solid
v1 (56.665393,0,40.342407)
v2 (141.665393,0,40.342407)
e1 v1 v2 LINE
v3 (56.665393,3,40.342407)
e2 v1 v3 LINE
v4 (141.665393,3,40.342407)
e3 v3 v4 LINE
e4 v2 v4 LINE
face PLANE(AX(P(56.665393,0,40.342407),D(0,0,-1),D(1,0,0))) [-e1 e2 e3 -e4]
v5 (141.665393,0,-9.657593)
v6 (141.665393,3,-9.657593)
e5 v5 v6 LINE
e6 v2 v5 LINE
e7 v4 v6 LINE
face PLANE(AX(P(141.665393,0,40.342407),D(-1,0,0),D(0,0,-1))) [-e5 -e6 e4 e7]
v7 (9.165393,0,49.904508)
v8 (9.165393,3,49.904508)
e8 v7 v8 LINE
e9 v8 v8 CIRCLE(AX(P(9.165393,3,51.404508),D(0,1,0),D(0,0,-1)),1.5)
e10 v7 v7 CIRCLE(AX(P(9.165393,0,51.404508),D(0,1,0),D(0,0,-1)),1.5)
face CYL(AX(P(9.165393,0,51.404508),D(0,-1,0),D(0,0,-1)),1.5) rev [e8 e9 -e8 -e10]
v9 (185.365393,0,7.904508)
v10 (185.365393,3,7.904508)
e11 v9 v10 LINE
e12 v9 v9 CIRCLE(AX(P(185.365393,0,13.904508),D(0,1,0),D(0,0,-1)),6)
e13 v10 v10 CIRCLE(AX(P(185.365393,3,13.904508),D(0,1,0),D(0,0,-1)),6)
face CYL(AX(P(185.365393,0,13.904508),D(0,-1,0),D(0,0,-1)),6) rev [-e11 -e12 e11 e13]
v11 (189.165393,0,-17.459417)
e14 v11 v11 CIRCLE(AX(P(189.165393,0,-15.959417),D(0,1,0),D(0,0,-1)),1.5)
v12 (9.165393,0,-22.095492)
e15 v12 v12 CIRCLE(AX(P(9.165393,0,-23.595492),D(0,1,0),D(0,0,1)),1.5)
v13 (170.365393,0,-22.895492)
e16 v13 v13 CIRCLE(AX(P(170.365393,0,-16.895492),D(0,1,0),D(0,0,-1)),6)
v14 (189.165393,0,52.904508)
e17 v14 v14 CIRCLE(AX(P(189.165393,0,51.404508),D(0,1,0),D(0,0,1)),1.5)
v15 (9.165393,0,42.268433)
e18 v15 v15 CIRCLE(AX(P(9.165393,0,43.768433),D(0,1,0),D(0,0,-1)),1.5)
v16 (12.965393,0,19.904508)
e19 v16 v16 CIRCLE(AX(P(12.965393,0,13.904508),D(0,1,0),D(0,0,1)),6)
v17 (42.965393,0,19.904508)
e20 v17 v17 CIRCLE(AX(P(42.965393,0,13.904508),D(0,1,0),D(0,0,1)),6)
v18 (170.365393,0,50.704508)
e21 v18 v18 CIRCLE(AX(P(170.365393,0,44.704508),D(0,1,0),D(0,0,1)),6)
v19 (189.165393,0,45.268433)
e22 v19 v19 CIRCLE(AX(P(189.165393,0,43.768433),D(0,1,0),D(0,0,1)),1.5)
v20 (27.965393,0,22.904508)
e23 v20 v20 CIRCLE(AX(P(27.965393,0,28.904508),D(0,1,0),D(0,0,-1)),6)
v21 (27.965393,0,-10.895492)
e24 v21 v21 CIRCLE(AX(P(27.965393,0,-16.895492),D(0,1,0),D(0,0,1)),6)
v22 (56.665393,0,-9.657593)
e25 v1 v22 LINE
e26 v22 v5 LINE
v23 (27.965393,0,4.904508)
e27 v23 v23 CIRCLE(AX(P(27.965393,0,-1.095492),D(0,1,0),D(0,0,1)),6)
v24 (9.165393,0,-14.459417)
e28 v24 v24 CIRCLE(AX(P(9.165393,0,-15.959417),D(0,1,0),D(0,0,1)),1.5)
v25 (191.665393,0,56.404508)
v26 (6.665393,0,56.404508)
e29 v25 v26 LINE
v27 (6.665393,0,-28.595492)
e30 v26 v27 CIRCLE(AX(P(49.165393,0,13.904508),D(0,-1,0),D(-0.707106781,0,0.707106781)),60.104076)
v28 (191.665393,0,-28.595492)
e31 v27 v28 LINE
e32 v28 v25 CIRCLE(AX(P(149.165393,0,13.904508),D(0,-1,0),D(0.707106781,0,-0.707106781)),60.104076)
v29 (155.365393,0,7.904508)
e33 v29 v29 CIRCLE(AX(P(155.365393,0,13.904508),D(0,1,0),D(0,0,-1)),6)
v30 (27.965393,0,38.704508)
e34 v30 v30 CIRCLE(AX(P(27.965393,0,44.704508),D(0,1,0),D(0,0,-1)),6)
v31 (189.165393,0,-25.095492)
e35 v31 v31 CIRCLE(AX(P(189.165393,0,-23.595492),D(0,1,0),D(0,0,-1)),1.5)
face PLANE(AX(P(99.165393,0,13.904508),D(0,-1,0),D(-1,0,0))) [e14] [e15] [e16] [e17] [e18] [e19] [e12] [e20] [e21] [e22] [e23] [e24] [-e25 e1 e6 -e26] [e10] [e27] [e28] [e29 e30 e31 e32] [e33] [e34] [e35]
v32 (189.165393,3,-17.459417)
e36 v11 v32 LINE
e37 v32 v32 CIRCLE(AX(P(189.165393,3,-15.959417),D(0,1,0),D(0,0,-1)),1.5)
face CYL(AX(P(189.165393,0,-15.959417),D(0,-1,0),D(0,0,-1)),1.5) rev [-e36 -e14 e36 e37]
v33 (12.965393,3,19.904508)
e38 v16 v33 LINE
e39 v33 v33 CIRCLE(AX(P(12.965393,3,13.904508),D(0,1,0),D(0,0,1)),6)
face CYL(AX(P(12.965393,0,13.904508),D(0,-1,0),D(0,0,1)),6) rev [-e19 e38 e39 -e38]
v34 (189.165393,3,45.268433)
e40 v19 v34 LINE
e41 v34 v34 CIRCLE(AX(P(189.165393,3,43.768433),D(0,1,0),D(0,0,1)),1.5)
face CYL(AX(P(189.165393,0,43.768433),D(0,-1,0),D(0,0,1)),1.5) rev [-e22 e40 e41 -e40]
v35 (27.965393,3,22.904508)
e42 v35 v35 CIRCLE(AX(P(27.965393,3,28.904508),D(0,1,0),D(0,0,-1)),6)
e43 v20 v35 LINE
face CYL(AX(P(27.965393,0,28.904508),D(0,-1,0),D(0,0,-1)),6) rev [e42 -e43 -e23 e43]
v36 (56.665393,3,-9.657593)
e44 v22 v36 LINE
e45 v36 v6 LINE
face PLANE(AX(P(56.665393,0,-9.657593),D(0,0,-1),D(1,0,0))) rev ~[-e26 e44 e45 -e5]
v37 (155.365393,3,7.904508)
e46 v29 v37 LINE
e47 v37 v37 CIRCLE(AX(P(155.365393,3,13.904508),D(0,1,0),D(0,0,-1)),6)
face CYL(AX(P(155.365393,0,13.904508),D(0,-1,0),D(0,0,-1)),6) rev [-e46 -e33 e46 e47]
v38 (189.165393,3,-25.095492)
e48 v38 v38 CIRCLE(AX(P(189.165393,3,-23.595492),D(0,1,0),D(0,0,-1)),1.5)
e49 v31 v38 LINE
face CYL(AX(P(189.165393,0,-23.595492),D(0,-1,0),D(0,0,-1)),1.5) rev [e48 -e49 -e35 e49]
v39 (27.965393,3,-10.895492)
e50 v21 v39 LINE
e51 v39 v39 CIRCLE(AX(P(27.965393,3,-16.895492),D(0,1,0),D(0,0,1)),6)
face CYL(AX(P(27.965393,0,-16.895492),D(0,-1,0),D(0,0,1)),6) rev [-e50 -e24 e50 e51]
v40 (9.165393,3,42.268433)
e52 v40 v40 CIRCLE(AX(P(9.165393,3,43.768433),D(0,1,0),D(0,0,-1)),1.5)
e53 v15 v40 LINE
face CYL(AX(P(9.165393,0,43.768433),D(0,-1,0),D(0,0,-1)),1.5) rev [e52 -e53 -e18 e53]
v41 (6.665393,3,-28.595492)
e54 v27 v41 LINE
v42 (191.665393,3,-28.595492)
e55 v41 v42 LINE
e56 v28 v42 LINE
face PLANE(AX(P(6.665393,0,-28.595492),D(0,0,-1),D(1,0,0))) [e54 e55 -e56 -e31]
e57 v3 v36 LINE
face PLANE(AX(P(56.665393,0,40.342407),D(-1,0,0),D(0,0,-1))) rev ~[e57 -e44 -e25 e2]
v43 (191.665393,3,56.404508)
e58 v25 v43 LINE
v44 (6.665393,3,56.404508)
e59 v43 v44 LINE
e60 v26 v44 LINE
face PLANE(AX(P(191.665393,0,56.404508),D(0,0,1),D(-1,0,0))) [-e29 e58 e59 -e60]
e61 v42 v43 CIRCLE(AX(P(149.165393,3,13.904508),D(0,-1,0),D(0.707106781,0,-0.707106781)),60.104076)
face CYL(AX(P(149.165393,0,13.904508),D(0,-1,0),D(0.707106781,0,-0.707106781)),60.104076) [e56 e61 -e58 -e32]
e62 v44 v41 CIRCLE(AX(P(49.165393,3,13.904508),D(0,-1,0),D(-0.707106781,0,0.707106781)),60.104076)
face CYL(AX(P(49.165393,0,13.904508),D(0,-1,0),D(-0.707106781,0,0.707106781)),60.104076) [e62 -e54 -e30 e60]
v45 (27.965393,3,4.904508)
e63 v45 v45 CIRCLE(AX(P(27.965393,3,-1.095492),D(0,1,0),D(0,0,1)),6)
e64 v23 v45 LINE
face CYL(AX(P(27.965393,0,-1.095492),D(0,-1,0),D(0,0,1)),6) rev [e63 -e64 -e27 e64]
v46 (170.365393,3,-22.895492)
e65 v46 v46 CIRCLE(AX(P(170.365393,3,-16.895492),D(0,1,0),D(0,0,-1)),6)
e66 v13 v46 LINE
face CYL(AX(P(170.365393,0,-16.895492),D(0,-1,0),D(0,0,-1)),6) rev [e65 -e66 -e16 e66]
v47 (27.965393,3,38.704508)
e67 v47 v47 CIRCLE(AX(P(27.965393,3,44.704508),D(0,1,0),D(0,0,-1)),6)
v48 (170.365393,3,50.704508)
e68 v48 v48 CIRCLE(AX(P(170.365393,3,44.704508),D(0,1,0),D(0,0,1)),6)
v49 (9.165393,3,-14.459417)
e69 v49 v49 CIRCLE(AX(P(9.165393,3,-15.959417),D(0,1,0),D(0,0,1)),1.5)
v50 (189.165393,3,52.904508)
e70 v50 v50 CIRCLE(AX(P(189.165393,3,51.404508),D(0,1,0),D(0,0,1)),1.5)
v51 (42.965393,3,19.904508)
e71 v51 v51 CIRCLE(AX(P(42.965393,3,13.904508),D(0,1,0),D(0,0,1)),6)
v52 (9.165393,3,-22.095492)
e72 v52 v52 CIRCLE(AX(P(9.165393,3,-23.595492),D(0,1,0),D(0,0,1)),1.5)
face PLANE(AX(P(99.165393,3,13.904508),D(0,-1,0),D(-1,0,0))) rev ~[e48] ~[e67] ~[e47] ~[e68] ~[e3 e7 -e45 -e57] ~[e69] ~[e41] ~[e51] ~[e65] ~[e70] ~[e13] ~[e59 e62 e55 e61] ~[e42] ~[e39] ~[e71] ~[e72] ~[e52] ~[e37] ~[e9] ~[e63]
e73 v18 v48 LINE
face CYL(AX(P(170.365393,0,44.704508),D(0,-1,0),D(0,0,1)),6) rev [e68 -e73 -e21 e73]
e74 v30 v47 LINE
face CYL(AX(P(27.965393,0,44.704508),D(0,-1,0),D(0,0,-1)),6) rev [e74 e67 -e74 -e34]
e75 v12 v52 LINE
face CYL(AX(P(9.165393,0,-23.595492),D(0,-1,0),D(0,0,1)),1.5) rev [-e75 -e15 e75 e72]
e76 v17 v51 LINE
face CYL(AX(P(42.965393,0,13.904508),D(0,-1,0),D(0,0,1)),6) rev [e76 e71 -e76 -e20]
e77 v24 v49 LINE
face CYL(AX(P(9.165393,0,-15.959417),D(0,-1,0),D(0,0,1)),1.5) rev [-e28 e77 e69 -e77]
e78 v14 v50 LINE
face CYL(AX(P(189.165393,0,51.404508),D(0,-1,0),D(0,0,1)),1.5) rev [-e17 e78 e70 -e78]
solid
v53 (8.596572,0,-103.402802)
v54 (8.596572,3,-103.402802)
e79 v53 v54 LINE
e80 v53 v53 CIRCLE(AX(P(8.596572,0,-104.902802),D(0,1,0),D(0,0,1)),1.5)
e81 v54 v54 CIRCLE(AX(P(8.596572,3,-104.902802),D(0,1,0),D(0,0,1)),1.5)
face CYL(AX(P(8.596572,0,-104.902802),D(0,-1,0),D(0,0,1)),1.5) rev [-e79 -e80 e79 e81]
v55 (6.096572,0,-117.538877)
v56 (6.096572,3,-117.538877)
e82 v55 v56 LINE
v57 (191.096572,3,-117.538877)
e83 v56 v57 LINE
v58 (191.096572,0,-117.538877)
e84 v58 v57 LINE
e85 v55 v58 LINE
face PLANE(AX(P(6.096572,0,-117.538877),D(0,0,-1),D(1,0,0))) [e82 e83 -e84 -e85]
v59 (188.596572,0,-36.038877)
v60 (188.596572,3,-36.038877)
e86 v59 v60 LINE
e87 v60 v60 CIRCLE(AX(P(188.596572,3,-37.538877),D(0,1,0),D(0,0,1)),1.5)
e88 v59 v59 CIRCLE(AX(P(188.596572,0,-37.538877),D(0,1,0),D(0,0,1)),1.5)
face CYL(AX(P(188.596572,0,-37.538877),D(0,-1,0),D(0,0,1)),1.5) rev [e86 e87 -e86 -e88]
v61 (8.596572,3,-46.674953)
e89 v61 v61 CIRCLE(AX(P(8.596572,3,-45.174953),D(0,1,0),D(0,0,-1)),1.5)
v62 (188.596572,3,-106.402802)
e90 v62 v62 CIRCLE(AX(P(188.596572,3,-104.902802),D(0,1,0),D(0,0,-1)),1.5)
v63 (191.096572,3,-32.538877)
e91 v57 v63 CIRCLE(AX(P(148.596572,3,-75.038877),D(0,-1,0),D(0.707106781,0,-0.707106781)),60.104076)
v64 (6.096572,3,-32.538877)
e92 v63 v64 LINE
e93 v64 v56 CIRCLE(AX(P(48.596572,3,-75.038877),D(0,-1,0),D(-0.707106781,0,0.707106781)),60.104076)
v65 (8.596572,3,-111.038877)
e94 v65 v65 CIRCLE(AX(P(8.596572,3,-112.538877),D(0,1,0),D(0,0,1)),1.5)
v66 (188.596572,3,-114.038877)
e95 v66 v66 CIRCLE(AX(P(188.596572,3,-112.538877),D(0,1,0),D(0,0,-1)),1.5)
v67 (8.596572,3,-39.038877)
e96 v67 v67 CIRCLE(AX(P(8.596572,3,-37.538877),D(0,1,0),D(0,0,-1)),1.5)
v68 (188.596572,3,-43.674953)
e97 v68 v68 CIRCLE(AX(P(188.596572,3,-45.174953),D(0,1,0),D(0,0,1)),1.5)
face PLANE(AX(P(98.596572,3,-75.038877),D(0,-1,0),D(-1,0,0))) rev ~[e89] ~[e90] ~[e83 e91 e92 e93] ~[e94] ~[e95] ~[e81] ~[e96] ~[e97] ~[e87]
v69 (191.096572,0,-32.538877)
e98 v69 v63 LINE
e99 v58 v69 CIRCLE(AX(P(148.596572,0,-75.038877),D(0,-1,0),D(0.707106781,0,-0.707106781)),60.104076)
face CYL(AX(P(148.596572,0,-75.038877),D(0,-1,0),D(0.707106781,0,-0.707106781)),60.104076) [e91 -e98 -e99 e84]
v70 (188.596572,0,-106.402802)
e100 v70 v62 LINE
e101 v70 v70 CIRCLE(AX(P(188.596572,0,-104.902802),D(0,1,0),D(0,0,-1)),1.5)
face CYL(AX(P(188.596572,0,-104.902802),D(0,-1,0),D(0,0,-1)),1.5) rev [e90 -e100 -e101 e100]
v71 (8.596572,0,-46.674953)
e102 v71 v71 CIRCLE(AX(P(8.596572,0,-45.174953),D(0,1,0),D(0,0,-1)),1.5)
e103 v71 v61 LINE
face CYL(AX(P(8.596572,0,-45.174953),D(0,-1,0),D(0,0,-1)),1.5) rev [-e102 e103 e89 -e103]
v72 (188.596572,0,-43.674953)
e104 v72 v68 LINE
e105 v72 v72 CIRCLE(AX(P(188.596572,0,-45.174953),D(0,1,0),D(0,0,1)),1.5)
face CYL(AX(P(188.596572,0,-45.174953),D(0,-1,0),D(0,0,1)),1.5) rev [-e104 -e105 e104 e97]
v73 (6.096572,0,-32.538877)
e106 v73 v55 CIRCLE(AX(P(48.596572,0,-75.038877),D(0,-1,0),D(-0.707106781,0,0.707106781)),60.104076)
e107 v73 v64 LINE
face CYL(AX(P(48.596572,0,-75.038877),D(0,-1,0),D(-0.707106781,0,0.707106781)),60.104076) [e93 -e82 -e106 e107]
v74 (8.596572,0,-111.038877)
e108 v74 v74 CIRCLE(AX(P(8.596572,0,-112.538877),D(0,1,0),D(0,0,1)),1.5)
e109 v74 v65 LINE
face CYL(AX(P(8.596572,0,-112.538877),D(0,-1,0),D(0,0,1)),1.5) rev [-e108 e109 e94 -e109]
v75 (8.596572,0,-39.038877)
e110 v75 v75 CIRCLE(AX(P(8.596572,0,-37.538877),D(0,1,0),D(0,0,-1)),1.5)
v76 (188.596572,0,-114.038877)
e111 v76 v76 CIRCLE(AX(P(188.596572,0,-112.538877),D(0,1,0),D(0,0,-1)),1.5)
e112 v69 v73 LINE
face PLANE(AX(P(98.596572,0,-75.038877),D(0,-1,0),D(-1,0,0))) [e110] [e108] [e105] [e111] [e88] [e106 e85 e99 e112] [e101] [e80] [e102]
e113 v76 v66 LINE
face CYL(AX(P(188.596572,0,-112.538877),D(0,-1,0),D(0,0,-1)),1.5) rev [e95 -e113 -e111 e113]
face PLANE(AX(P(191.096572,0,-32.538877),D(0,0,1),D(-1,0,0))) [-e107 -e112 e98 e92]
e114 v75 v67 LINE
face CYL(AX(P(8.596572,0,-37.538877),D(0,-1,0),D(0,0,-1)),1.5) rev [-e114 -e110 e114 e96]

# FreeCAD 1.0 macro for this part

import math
import FreeCAD as App
import Part
import Sketcher

V = App.Vector
Q = App.Units.Quantity

doc = App.newDocument("Part")
body = doc.addObject("PartDesign::Body", "Body")

# Sketch on XZ plane
sketch1 = body.newObject("Sketcher::SketchObject", "Sketch")
sketch1.AttachmentSupport = (doc.getObject("XZ_Plane"), [""])
sketch1.MapMode = "FlatFace"
sketch1.addGeometry([
    Part.LineSegment(V(191.665393, -28.595492, 0), V(6.665393, -28.595492, 0)),  # 0
    Part.ArcOfCircle(Part.Circle(V(49.165393, 13.904508, 0), V(0, 0, 1), 60.104076), math.radians(135), math.radians(225)),  # 1
    Part.LineSegment(V(6.665393, 56.404508, 0), V(191.665393, 56.404508, 0)),  # 2
    Part.ArcOfCircle(Part.Circle(V(149.165393, 13.904508, 0), V(0, 0, 1), 60.104076), math.radians(-45), math.radians(45)),  # 3
    Part.Circle(V(189.165393, 51.404508, 0), V(0, 0, 1), 1.5),  # 4
    Part.Circle(V(189.165393, 43.768433, 0), V(0, 0, 1), 1.5),  # 5
    Part.Circle(V(170.365393, 44.704508, 0), V(0, 0, 1), 6),  # 6
    Part.Circle(V(9.165393, 51.404508, 0), V(0, 0, 1), 1.5),  # 7
    Part.Circle(V(27.965393, 44.704508, 0), V(0, 0, 1), 6),  # 8
    Part.Circle(V(9.165393, 43.768433, 0), V(0, 0, 1), 1.5),  # 9
    Part.LineSegment(V(56.665393, 40.342407, 0), V(56.665393, -9.657593, 0)),  # 10
    Part.LineSegment(V(56.665393, -9.657593, 0), V(141.665393, -9.657593, 0)),  # 11
    Part.LineSegment(V(141.665393, -9.657593, 0), V(141.665393, 40.342407, 0)),  # 12
    Part.LineSegment(V(141.665393, 40.342407, 0), V(56.665393, 40.342407, 0)),  # 13
    Part.Circle(V(27.965393, 28.904508, 0), V(0, 0, 1), 6),  # 14
    Part.Circle(V(185.365393, 13.904508, 0), V(0, 0, 1), 6),  # 15
    Part.Circle(V(155.365393, 13.904508, 0), V(0, 0, 1), 6),  # 16
    Part.Circle(V(189.165393, -15.959417, 0), V(0, 0, 1), 1.5),  # 17
    Part.Circle(V(170.365393, -16.895492, 0), V(0, 0, 1), 6),  # 18
    Part.Circle(V(189.165393, -23.595492, 0), V(0, 0, 1), 1.5),  # 19
    Part.Circle(V(42.965393, 13.904508, 0), V(0, 0, 1), 6),  # 20
    Part.Circle(V(12.965393, 13.904508, 0), V(0, 0, 1), 6),  # 21
    Part.Circle(V(27.965393, -1.095492, 0), V(0, 0, 1), 6),  # 22
    Part.Circle(V(27.965393, -16.895492, 0), V(0, 0, 1), 6),  # 23
    Part.Circle(V(9.165393, -15.959417, 0), V(0, 0, 1), 1.5),  # 24
    Part.Circle(V(9.165393, -23.595492, 0), V(0, 0, 1), 1.5),  # 25
], False)
sketch1.addConstraint([
    Sketcher.Constraint("Coincident", 0, 2, 1, 2),
    Sketcher.Constraint("Coincident", 1, 1, 2, 1),
    Sketcher.Constraint("Coincident", 2, 2, 3, 2),
    Sketcher.Constraint("Coincident", 3, 1, 0, 1),
    Sketcher.Constraint("Coincident", 10, 2, 11, 1),
    Sketcher.Constraint("Coincident", 11, 2, 12, 1),
    Sketcher.Constraint("Coincident", 12, 2, 13, 1),
    Sketcher.Constraint("Coincident", 13, 2, 10, 1),
    Sketcher.Constraint("Horizontal", 0),
    Sketcher.Constraint("Horizontal", 2),
    Sketcher.Constraint("Vertical", 10),
    Sketcher.Constraint("Horizontal", 11),
    Sketcher.Constraint("Vertical", 12),
    Sketcher.Constraint("Horizontal", 13),
    Sketcher.Constraint("Equal", 1, 3),
    Sketcher.Constraint("Equal", 4, 5),
    Sketcher.Constraint("Equal", 5, 7),
    Sketcher.Constraint("Equal", 6, 8),
    Sketcher.Constraint("Equal", 7, 9),
    Sketcher.Constraint("Equal", 8, 14),
    Sketcher.Constraint("Equal", 14, 15),
    Sketcher.Constraint("Equal", 15, 16),
    Sketcher.Constraint("Equal", 9, 17),
    Sketcher.Constraint("Equal", 16, 18),
    Sketcher.Constraint("Equal", 17, 19),
    Sketcher.Constraint("Equal", 18, 20),
    Sketcher.Constraint("Equal", 20, 21),
    Sketcher.Constraint("Equal", 21, 22),
    Sketcher.Constraint("Equal", 22, 23),
    Sketcher.Constraint("Equal", 19, 24),
    Sketcher.Constraint("Equal", 24, 25),
    Sketcher.Constraint("Horizontal", 1, 3, 3, 3),
    Sketcher.Constraint("Horizontal", 4, 3, 7, 3),
    Sketcher.Constraint("Horizontal", 6, 3, 8, 3),
    Sketcher.Constraint("Horizontal", 5, 3, 9, 3),
    Sketcher.Constraint("Horizontal", 3, 3, 15, 3),
    Sketcher.Constraint("Horizontal", 15, 3, 16, 3),
    Sketcher.Constraint("Horizontal", 16, 3, 20, 3),
    Sketcher.Constraint("Horizontal", 20, 3, 21, 3),
    Sketcher.Constraint("Horizontal", 18, 3, 23, 3),
    Sketcher.Constraint("Horizontal", 17, 3, 24, 3),
    Sketcher.Constraint("Horizontal", 19, 3, 25, 3),
    Sketcher.Constraint("Vertical", 4, 3, 5, 3),
    Sketcher.Constraint("Vertical", 7, 3, 9, 3),
    Sketcher.Constraint("Vertical", 8, 3, 14, 3),
    Sketcher.Constraint("Vertical", 5, 3, 17, 3),
    Sketcher.Constraint("Vertical", 6, 3, 18, 3),
    Sketcher.Constraint("Vertical", 17, 3, 19, 3),
    Sketcher.Constraint("Vertical", 14, 3, 22, 3),
    Sketcher.Constraint("Vertical", 22, 3, 23, 3),
    Sketcher.Constraint("Vertical", 9, 3, 24, 3),
    Sketcher.Constraint("Vertical", 24, 3, 25, 3),
    Sketcher.Constraint("Vertical", 0, 2, 1, 1),
    Sketcher.Constraint("Diameter", 4, Q("3 mm")),
    Sketcher.Constraint("Diameter", 6, Q("12 mm")),
    Sketcher.Constraint("DistanceX", 0, 2, 0, 1, Q("185 mm")),
    Sketcher.Constraint("DistanceX", 11, 1, 11, 2, Q("85 mm")),
    Sketcher.Constraint("DistanceY", 10, 2, 10, 1, Q("50 mm")),
    Sketcher.Constraint("DistanceX", 1, 3, 3, 3, Q("100 mm")),
    Sketcher.Constraint("DistanceX", 3, 3, 4, 3, Q("40 mm")),
    Sketcher.Constraint("DistanceX", 7, 3, 1, 3, Q("40 mm")),
    Sketcher.Constraint("DistanceY", 1, 3, 14, 3, Q("15 mm")),
    Sketcher.Constraint("DistanceX", 6, 3, 15, 3, Q("15 mm")),
    Sketcher.Constraint("DistanceX", 16, 3, 15, 3, Q("30 mm")),
    Sketcher.Constraint("DistanceX", 14, 3, 20, 3, Q("15 mm")),
    Sketcher.Constraint("DistanceX", 21, 3, 14, 3, Q("15 mm")),
    Sketcher.Constraint("DistanceY", 22, 3, 21, 3, Q("15 mm")),
    Sketcher.Constraint("DistanceY", 0, 2, 25, 3, Q("5 mm")),
    Sketcher.Constraint("DistanceY", 7, 3, 1, 1, Q("5 mm")),
    Sketcher.Constraint("DistanceY", 3, 3, 4, 3, Q("37.5 mm")),
    Sketcher.Constraint("DistanceX", 6, 3, 5, 3, Q("18.8 mm")),
    Sketcher.Constraint("DistanceY", 6, 3, 4, 3, Q("6.7 mm")),
    Sketcher.Constraint("DistanceX", 7, 3, 8, 3, Q("18.8 mm")),
    Sketcher.Constraint("DistanceY", 18, 3, 15, 3, Q("30.8 mm")),
    Sketcher.Constraint("DistanceX", 1, 3, 10, 2, Q("7.5 mm")),
    Sketcher.Constraint("DistanceY", 10, 2, 1, 3, Q("23.562101 mm")),
    Sketcher.Constraint("DistanceY", -1, 1, 1, 3, Q("13.904508 mm")),
    Sketcher.Constraint("DistanceY", 17, 3, 5, 3, Q("59.727849 mm")),
    Sketcher.Constraint("DistanceX", -1, 1, 1, 3, Q("49.165393 mm")),
    Sketcher.Constraint("DistanceY", -1, 1, 5, 3, Q("43.768433 mm")),
])
pad1 = body.newObject("PartDesign::Pad", "Pad")
pad1.Profile = sketch1
pad1.Length = 3
pad1.Reversed = True
body2 = doc.addObject("PartDesign::Body", "Body001")

# Sketch on XZ plane
sketch2 = body2.newObject("Sketcher::SketchObject", "Sketch001")
sketch2.AttachmentSupport = (doc.getObject("XZ_Plane001"), [""])
sketch2.MapMode = "FlatFace"
sketch2.addGeometry([
    Part.LineSegment(V(191.096572, -117.538877, 0), V(6.096572, -117.538877, 0)),  # 0
    Part.ArcOfCircle(Part.Circle(V(48.596572, -75.038877, 0), V(0, 0, 1), 60.104076), math.radians(135), math.radians(225)),  # 1
    Part.LineSegment(V(6.096572, -32.538877, 0), V(191.096572, -32.538877, 0)),  # 2
    Part.ArcOfCircle(Part.Circle(V(148.596572, -75.038877, 0), V(0, 0, 1), 60.104076), math.radians(-45), math.radians(45)),  # 3
    Part.Circle(V(188.596572, -37.538877, 0), V(0, 0, 1), 1.5),  # 4
    Part.Circle(V(188.596572, -45.174953, 0), V(0, 0, 1), 1.5),  # 5
    Part.Circle(V(8.596572, -37.538877, 0), V(0, 0, 1), 1.5),  # 6
    Part.Circle(V(8.596572, -45.174953, 0), V(0, 0, 1), 1.5),  # 7
    Part.Circle(V(188.596572, -104.902802, 0), V(0, 0, 1), 1.5),  # 8
    Part.Circle(V(188.596572, -112.538877, 0), V(0, 0, 1), 1.5),  # 9
    Part.Circle(V(8.596572, -104.902802, 0), V(0, 0, 1), 1.5),  # 10
    Part.Circle(V(8.596572, -112.538877, 0), V(0, 0, 1), 1.5),  # 11
], False)
sketch2.addConstraint([
    Sketcher.Constraint("Coincident", 0, 2, 1, 2),
    Sketcher.Constraint("Coincident", 1, 1, 2, 1),
    Sketcher.Constraint("Coincident", 2, 2, 3, 2),
    Sketcher.Constraint("Coincident", 3, 1, 0, 1),
    Sketcher.Constraint("Horizontal", 0),
    Sketcher.Constraint("Horizontal", 2),
    Sketcher.Constraint("Equal", 1, 3),
    Sketcher.Constraint("Equal", 4, 5),
    Sketcher.Constraint("Equal", 5, 6),
    Sketcher.Constraint("Equal", 6, 7),
    Sketcher.Constraint("Equal", 7, 8),
    Sketcher.Constraint("Equal", 8, 9),
    Sketcher.Constraint("Equal", 9, 10),
    Sketcher.Constraint("Equal", 10, 11),
    Sketcher.Constraint("Horizontal", 1, 3, 3, 3),
    Sketcher.Constraint("Horizontal", 4, 3, 6, 3),
    Sketcher.Constraint("Horizontal", 5, 3, 7, 3),
    Sketcher.Constraint("Horizontal", 8, 3, 10, 3),
    Sketcher.Constraint("Horizontal", 9, 3, 11, 3),
    Sketcher.Constraint("Vertical", 4, 3, 5, 3),
    Sketcher.Constraint("Vertical", 6, 3, 7, 3),
    Sketcher.Constraint("Vertical", 5, 3, 8, 3),
    Sketcher.Constraint("Vertical", 8, 3, 9, 3),
    Sketcher.Constraint("Vertical", 7, 3, 10, 3),
    Sketcher.Constraint("Vertical", 10, 3, 11, 3),
    Sketcher.Constraint("Vertical", 0, 2, 1, 1),
    Sketcher.Constraint("Diameter", 4, Q("3 mm")),
    Sketcher.Constraint("DistanceX", 0, 2, 0, 1, Q("185 mm")),
    Sketcher.Constraint("DistanceX", 1, 3, 3, 3, Q("100 mm")),
    Sketcher.Constraint("DistanceX", 3, 3, 4, 3, Q("40 mm")),
    Sketcher.Constraint("DistanceX", 6, 3, 1, 3, Q("40 mm")),
    Sketcher.Constraint("DistanceY", 9, 3, 4, 3, Q("75 mm")),
    Sketcher.Constraint("DistanceY", 0, 2, 11, 3, Q("5 mm")),
    Sketcher.Constraint("DistanceY", 6, 3, 1, 1, Q("5 mm")),
    Sketcher.Constraint("DistanceY", 8, 3, -1, 1, Q("104.902802 mm")),
    Sketcher.Constraint("DistanceY", 8, 3, 5, 3, Q("59.727849 mm")),
    Sketcher.Constraint("DistanceX", -1, 1, 1, 3, Q("48.596572 mm")),
    Sketcher.Constraint("DistanceY", 1, 3, -1, 1, Q("75.038877 mm")),
])
pad2 = body2.newObject("PartDesign::Pad", "Pad001")
pad2.Profile = sketch2
pad2.Length = 3
pad2.Reversed = True

doc.recompute()
